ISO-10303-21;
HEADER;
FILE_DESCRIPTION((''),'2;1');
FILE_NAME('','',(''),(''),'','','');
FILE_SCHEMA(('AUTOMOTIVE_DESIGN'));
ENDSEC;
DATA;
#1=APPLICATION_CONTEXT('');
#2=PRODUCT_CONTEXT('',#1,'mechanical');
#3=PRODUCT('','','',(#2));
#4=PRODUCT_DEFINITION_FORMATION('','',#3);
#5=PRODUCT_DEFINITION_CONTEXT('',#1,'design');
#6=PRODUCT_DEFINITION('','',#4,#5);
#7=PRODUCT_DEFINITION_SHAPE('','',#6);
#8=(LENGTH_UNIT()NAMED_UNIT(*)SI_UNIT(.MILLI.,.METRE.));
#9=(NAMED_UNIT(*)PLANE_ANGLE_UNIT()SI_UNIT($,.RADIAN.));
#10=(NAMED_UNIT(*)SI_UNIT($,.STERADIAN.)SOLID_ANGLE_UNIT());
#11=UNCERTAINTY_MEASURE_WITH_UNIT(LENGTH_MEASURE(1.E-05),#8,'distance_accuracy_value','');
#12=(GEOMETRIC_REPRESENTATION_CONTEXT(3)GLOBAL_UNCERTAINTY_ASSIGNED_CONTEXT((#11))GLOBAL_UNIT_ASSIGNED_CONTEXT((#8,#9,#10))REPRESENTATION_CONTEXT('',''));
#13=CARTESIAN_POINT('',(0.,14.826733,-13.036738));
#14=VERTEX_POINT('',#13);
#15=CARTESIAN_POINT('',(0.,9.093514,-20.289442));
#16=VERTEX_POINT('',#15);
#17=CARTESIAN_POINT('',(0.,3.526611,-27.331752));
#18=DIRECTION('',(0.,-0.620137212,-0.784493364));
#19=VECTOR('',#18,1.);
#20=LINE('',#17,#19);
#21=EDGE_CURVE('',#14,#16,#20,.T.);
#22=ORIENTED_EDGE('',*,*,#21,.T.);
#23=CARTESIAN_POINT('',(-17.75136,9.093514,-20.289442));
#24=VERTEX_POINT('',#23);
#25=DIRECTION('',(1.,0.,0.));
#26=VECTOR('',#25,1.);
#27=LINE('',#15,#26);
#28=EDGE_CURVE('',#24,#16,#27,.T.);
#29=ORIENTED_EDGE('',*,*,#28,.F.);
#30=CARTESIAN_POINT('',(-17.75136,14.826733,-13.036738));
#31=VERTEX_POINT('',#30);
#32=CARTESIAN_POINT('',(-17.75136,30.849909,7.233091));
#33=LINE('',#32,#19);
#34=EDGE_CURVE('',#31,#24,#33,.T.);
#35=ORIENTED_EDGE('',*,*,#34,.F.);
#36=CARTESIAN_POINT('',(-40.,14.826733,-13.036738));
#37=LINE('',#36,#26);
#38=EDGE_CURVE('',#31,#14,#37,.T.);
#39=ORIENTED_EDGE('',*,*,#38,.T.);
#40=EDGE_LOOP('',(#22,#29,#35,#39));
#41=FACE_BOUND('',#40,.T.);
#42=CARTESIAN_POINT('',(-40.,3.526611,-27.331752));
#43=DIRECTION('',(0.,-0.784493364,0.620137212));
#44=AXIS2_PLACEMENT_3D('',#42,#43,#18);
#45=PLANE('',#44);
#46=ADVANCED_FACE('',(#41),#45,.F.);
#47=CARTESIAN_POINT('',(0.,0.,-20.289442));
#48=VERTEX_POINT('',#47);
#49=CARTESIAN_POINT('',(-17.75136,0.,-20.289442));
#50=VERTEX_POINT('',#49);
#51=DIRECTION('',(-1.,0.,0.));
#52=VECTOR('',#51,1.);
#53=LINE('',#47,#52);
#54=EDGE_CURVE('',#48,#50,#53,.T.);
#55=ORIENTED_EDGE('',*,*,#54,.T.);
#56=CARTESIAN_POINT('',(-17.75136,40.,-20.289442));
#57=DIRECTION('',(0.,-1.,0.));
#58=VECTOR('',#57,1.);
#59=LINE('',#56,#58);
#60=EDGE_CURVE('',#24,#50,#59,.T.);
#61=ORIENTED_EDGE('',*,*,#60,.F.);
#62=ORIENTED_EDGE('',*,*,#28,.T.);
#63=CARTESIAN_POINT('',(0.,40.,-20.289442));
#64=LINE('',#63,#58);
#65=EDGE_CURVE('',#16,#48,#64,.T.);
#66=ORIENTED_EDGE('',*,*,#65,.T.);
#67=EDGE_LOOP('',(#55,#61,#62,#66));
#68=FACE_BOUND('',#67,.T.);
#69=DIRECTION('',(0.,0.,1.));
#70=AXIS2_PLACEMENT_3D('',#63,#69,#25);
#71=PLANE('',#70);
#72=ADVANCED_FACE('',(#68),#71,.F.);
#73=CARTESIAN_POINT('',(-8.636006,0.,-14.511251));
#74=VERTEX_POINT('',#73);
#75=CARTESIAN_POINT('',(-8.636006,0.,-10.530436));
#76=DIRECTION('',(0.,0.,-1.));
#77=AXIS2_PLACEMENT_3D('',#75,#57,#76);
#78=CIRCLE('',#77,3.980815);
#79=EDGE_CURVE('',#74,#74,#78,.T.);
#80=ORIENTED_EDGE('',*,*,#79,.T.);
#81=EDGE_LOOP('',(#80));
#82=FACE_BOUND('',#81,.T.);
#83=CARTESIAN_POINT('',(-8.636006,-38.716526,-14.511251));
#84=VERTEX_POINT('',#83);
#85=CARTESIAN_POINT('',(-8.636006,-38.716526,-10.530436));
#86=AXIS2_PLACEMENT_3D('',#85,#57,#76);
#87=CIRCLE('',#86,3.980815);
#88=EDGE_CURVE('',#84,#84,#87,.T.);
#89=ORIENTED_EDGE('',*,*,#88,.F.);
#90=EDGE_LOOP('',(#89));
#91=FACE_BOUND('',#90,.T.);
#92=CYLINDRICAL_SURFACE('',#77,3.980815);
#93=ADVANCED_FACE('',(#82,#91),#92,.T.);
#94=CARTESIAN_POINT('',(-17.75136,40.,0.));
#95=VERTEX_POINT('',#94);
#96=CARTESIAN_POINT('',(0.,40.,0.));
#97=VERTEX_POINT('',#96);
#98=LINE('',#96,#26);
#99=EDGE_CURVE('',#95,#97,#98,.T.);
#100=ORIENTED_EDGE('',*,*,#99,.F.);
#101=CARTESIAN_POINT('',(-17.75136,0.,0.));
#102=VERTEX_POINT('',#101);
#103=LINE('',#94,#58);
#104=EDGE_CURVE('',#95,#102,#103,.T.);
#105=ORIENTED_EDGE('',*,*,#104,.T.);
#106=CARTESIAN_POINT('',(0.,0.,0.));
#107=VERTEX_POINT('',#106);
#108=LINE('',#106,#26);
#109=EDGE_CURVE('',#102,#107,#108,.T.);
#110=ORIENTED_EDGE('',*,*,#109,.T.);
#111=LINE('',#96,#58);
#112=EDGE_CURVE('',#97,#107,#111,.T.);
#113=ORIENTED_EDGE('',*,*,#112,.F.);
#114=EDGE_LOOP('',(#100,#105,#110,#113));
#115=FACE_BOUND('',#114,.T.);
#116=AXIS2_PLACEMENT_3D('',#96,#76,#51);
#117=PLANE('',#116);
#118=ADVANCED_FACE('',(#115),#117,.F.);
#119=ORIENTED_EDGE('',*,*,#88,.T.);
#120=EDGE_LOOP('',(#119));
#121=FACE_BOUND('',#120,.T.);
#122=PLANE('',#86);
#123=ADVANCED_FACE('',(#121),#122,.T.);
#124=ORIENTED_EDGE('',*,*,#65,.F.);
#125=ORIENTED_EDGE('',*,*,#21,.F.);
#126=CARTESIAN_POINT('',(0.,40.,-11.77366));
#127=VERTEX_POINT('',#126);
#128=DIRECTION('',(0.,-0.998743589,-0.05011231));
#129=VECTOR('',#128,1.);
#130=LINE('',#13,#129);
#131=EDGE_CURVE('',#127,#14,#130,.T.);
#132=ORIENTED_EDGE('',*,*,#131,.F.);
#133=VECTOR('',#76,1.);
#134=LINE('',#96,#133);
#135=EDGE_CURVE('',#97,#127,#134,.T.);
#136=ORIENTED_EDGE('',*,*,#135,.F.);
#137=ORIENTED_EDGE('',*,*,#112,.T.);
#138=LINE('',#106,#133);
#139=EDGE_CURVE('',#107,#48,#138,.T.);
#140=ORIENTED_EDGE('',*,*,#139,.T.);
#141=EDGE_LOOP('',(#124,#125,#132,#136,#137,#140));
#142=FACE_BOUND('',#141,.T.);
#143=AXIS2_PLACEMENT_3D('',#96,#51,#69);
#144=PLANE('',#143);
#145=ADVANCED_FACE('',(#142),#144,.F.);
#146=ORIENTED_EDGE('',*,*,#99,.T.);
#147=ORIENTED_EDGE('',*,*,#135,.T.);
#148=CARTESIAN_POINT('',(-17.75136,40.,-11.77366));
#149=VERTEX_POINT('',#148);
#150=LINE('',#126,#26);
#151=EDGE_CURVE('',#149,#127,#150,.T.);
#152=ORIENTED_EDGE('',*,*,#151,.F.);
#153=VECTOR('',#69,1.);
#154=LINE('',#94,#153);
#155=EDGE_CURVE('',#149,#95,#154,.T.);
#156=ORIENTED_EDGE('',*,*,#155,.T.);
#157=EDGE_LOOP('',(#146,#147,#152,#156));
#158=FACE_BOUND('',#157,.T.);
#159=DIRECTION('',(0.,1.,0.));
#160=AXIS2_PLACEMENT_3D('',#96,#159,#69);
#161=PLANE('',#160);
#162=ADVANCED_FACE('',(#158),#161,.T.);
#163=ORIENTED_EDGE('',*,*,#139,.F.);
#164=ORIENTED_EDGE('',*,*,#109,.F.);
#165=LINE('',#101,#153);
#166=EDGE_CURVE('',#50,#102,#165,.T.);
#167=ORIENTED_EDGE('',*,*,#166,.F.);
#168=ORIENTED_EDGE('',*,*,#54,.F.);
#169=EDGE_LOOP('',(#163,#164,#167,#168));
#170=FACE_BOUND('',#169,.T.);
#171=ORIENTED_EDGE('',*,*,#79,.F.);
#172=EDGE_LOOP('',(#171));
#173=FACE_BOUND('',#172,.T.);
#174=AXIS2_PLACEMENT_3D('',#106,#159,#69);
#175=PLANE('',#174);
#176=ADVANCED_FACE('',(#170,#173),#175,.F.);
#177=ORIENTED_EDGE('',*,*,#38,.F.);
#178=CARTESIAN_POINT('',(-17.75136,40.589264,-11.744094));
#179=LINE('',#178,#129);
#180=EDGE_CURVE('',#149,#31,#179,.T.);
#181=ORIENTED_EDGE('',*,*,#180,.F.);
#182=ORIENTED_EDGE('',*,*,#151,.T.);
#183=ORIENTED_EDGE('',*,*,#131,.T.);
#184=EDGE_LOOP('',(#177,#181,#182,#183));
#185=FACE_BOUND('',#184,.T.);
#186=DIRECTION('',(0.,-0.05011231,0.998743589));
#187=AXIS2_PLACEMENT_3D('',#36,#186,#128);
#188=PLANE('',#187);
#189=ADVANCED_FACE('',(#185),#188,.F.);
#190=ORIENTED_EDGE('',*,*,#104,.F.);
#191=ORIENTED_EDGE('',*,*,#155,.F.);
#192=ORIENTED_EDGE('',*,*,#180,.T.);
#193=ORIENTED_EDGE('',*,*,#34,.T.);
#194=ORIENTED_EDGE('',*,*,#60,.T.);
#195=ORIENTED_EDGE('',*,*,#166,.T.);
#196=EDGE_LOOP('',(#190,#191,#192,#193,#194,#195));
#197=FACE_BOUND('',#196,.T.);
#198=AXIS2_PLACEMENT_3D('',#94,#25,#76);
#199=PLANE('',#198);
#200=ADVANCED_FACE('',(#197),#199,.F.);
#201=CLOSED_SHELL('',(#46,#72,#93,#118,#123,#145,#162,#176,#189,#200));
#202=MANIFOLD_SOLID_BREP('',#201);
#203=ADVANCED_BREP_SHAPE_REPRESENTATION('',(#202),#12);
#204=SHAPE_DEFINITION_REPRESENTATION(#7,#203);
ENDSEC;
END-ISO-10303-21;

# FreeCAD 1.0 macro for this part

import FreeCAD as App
import Part
import Sketcher


def add_polygon(sketch, points):
    """Adds a closed chain of lines whose ends are joined by coincident constraints."""
    first, n = sketch.GeometryCount, len(points)
    for a, b in zip(points, points[1:] + points[:1]):
        sketch.addGeometry(Part.LineSegment(App.Vector(*a, 0), App.Vector(*b, 0)), False)
    for i in range(n):
        sketch.addConstraint(Sketcher.Constraint("Coincident", first + i, 2, first + (i + 1) % n, 1))

doc = App.newDocument("Part")
body = doc.addObject("PartDesign::Body", "Body")

sketch1 = body.newObject("Sketcher::SketchObject", "Sketch")
sketch1.AttachmentSupport = (doc.getObject("XZ_Plane"), [""])
sketch1.MapMode = "FlatFace"
add_polygon(sketch1, [(-17.75136, -20.289442), (-17.75136, 0), (0, 0), (0, -20.289442)])
sketch1.addConstraint([
    Sketcher.Constraint("Vertical", 0),
    Sketcher.Constraint("Horizontal", 1),
    Sketcher.Constraint("Vertical", 2),
    Sketcher.Constraint("Horizontal", 3),
    Sketcher.Constraint("Coincident", 1, 2, -1, 1),
    Sketcher.Constraint("DistanceX", 1, 1, 1, 2, 17.75136),
    Sketcher.Constraint("DistanceY", 0, 1, 0, 2, 20.289442),
])
pad1 = body.newObject("PartDesign::Pad", "Pad")
pad1.Profile = sketch1
pad1.Length = 40
pad1.Reversed = True

sketch2 = body.newObject("Sketcher::SketchObject", "Sketch001")
sketch2.AttachmentSupport = (doc.getObject("XZ_Plane"), [""])
sketch2.MapMode = "FlatFace"
sketch2.addGeometry(Part.Circle(App.Vector(-8.636006, -10.530436, 0), App.Vector(0, 0, 1), 3.980815), False)
sketch2.addConstraint([
    Sketcher.Constraint("Diameter", 0, 7.96163),
    Sketcher.Constraint("DistanceX", 0, 3, -1, 1, 8.636006),
    Sketcher.Constraint("DistanceY", 0, 3, -1, 1, 10.530436),
])

sketch3 = body.newObject("Sketcher::SketchObject", "Sketch002")
sketch3.AttachmentSupport = (doc.getObject("XY_Plane"), [""])
sketch3.MapMode = "FlatFace"
sketch3.AttachmentOffset = App.Placement(App.Vector(0, 0, -10.530436), App.Rotation())
sketch3.addGeometry(Part.LineSegment(App.Vector(-8.636006, 0, 0), App.Vector(-8.636006, -38.716526, 0)), False)
sketch3.addConstraint([
    Sketcher.Constraint("Vertical", 0),
    Sketcher.Constraint("PointOnObject", 0, 1, -1),
    Sketcher.Constraint("DistanceY", 0, 2, 0, 1, 38.716526),
    Sketcher.Constraint("DistanceX", 0, 1, -1, 1, 8.636006),
])
doc.recompute()

additivepipe = body.newObject("PartDesign::AdditivePipe", "AdditivePipe")
additivepipe.Profile = sketch2
additivepipe.Spine = (sketch3, ["Edge1"])

sketch4 = body.newObject("Sketcher::SketchObject", "Sketch003")
sketch4.AttachmentSupport = (doc.getObject("YZ_Plane"), [""])
sketch4.MapMode = "FlatFace"
add_polygon(sketch4, [(14.826733, -13.036738), (3.526611, -27.331752), (42.721399, -29.802798), (44.474117, -11.54917)])
sketch4.addConstraint([
    Sketcher.Constraint("DistanceX", -1, 1, 1, 2, 42.721399),
    Sketcher.Constraint("Distance", 0, 18.22197),
    Sketcher.Constraint("Distance", 3, 29.68468),
    Sketcher.Constraint("DistanceX", -1, 1, 0, 2, 3.526611),
    Sketcher.Constraint("DistanceY", 0, 2, -1, 1, 27.331752),
    Sketcher.Constraint("DistanceY", 2, 2, -1, 1, 11.54917),
    Sketcher.Constraint("DistanceX", 1, 2, 2, 2, 1.752718),
    Sketcher.Constraint("DistanceY", 1, 2, 3, 2, 16.76606),
])
pocket1 = body.newObject("PartDesign::Pocket", "Pocket")
pocket1.Profile = sketch4
pocket1.Length = 40

doc.recompute()
